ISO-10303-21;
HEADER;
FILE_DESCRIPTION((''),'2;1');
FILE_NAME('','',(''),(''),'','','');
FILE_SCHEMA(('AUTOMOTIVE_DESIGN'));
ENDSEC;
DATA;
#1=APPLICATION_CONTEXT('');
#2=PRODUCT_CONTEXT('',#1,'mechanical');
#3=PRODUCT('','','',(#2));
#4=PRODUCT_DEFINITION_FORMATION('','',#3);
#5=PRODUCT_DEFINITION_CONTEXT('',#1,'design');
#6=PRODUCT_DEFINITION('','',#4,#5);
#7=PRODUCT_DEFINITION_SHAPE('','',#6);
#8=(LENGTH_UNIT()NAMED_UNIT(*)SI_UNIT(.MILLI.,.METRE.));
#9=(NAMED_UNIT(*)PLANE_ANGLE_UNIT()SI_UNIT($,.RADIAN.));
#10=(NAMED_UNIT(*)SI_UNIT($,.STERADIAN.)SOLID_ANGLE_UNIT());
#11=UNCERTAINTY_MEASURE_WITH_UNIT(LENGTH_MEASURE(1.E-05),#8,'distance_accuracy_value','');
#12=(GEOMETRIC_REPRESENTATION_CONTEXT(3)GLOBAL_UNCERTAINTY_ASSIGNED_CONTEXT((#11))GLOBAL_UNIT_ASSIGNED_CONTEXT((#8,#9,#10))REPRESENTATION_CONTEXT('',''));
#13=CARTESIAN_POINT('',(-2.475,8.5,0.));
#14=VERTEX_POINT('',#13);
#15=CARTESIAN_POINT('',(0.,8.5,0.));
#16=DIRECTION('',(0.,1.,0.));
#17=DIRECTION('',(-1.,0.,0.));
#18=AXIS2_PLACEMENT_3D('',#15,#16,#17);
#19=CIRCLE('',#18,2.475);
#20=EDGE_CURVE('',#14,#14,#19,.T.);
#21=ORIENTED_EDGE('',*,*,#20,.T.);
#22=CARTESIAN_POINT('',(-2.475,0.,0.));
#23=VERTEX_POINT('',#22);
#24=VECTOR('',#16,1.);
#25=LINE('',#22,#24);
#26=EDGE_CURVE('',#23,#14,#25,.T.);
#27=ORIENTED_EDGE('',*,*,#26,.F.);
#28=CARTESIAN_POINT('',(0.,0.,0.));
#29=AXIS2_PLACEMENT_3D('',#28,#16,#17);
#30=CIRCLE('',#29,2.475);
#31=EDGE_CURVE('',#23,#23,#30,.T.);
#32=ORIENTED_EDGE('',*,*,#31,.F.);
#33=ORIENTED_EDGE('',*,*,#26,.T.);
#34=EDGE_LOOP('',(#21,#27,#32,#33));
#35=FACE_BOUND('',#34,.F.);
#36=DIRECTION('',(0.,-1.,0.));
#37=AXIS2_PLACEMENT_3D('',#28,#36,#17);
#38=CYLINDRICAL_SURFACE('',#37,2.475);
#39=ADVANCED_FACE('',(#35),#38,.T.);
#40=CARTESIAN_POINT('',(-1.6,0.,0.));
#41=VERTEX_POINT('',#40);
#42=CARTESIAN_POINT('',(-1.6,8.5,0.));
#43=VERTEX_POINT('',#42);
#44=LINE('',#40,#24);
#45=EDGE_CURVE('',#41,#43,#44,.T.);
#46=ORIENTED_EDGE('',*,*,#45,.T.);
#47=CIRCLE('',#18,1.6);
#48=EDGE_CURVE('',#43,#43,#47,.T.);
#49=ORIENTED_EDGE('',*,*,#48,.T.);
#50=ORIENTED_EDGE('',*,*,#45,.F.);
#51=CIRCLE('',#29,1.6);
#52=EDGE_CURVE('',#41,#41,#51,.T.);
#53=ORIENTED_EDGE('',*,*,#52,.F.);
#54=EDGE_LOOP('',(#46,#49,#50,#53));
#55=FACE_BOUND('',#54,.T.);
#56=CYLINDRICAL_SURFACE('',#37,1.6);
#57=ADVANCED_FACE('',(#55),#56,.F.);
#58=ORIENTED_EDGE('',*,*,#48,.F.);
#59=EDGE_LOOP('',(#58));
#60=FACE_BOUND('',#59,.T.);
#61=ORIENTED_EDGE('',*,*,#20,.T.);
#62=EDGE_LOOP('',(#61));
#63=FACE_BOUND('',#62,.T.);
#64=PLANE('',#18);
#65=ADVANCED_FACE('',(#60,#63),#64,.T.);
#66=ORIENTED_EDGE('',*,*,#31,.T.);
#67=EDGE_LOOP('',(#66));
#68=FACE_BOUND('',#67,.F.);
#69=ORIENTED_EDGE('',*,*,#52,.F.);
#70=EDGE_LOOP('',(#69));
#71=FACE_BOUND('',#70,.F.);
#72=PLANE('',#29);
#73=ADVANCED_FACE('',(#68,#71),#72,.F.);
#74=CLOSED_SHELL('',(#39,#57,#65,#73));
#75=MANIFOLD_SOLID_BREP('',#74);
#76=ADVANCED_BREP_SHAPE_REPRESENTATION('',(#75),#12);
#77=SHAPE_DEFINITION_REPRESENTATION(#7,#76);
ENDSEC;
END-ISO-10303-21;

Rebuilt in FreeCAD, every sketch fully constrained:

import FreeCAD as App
import Part
import Sketcher
from FreeCAD import Vector

doc = App.newDocument("Part")
body = doc.addObject("PartDesign::Body", "Body")

# Sketch on XZ plane
sketch1 = doc.addObject("Sketcher::SketchObject", "Sketch")
body.addObject(sketch1)
sketch1.AttachmentSupport = (doc.XZ_Plane, [""])
sketch1.MapMode = "FlatFace"
sketch1.addGeometry([
    Part.Circle(Vector(0, 0, 0), Vector(0, 0, 1), 2.5),
    Part.Circle(Vector(0, 0, 0), Vector(0, 0, 1), 1.6),
], False)
sketch1.addConstraint([
    Sketcher.Constraint("Coincident", 0, 3, -1, 1),
    Sketcher.Constraint("Coincident", 1, 3, -1, 1),
    Sketcher.Constraint("Diameter", 1, 3.2),
    Sketcher.Constraint("Diameter", 0, 4.95),
])
pad1 = doc.addObject("PartDesign::Pad", "Pad")
body.addObject(pad1)
pad1.Profile = sketch1
pad1.Length = 8.5
pad1.Reversed = True

doc.recompute()
